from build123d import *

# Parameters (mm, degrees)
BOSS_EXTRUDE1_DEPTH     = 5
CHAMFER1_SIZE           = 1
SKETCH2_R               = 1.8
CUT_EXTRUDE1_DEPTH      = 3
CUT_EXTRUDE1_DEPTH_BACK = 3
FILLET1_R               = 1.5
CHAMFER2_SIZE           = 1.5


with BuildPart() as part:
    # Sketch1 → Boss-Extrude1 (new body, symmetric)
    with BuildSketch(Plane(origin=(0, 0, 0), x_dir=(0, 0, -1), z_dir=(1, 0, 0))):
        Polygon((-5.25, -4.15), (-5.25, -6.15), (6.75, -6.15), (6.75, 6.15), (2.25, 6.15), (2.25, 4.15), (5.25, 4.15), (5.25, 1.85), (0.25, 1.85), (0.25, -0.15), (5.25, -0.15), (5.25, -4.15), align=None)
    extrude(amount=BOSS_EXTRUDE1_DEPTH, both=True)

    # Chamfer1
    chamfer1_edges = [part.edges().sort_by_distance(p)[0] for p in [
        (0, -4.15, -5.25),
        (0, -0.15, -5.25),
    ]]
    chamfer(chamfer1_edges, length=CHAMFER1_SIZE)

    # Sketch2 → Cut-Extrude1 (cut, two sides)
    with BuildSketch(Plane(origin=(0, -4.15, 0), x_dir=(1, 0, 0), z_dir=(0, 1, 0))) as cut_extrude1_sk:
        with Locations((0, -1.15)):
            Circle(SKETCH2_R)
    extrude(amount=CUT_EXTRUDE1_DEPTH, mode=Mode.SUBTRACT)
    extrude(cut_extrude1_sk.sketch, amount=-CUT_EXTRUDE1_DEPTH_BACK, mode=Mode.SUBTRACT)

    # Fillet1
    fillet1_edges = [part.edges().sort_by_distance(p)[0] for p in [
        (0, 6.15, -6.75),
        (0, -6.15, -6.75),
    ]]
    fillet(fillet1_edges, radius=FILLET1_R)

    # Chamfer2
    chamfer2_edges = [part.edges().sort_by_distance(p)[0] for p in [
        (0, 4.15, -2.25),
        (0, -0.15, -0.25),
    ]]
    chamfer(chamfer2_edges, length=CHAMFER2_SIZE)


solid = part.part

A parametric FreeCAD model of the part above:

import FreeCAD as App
import Part
import Sketcher

V = App.Vector
Q = App.Units.Quantity


def edges_at(feature, points):
    """Names of the edges that pass closest to the given points."""
    edges = feature.Shape.Edges
    near = lambda p: min(range(len(edges)), key=lambda i: edges[i].distToShape(Part.Vertex(*p))[0])
    return sorted({f"Edge{near(p) + 1}" for p in points})


def add_polygon(sketch, points):
    """Adds a closed chain of lines whose ends are joined by coincident constraints."""
    first, n = sketch.GeometryCount, len(points)
    for a, b in zip(points, points[1:] + points[:1]):
        sketch.addGeometry(Part.LineSegment(App.Vector(*a, 0), App.Vector(*b, 0)), False)
    for i in range(n):
        sketch.addConstraint(Sketcher.Constraint("Coincident", first + i, 2, first + (i + 1) % n, 1))

doc = App.newDocument("Part")
body = doc.addObject("PartDesign::Body", "Body")

# Sketch on YZ plane
sketch1 = body.newObject("Sketcher::SketchObject", "Sketch")
sketch1.AttachmentSupport = (doc.getObject("YZ_Plane"), [""])
sketch1.MapMode = "FlatFace"
add_polygon(sketch1, [(-4.2, 5.2), (-6.2, 5.2), (-6.2, -6.8), (6.2, -6.8), (6.2, -2.2), (4.2, -2.2), (4.2, -5.2), (1.9, -5.2), (1.9, -0.2), (-0.1, -0.2), (-0.1, -5.2), (-4.2, -5.2)])  # lines 0-11
sketch1.addConstraint([
    Sketcher.Constraint("Horizontal", 0),
    Sketcher.Constraint("Vertical", 1),
    Sketcher.Constraint("Horizontal", 2),
    Sketcher.Constraint("Vertical", 3),
    Sketcher.Constraint("Horizontal", 4),
    Sketcher.Constraint("Vertical", 5),
    Sketcher.Constraint("Horizontal", 6),
    Sketcher.Constraint("Vertical", 7),
    Sketcher.Constraint("Horizontal", 8),
    Sketcher.Constraint("Vertical", 9),
    Sketcher.Constraint("Horizontal", 10),
    Sketcher.Constraint("Vertical", 11),
    Sketcher.Constraint("Symmetric", 5, 2, 11, 2, -1, 1),
    Sketcher.Constraint("Horizontal", 6, 2, 9, 2),
    Sketcher.Constraint("Equal", 0, 4),
    Sketcher.Constraint("Equal", 4, 8),
    Sketcher.Constraint("DistanceX", 0, 2, 0, 1, Q("2 mm")),
    Sketcher.Constraint("DistanceX", 10, 2, 10, 1, Q("4 mm")),
    Sketcher.Constraint("DistanceY", 1, 2, 1, 1, Q("12 mm")),
    Sketcher.Constraint("DistanceY", 5, 2, 5, 1, Q("3 mm")),
    Sketcher.Constraint("DistanceY", 7, 1, 7, 2, Q("5 mm")),
    Sketcher.Constraint("DistanceX", 2, 1, 2, 2, Q("12.3 mm")),
    Sketcher.Constraint("DistanceY", 3, 1, 3, 2, Q("4.5 mm")),
])
pad1 = body.newObject("PartDesign::Pad", "Pad")
pad1.Profile = sketch1
pad1.Length = 10
pad1.Midplane = True
doc.recompute()

chamfer = body.newObject("PartDesign::Chamfer", "Chamfer")
chamfer.Base = (pad1, edges_at(pad1, [(0, -4.15, -5.25), (0, -0.15, -5.25)]))
chamfer.Size = 1

# Sketch on XZ plane
sketch2 = body.newObject("Sketcher::SketchObject", "Sketch001")
sketch2.AttachmentSupport = (doc.getObject("XZ_Plane"), [""])
sketch2.MapMode = "FlatFace"
sketch2.AttachmentOffset = App.Placement(V(0, 0, 4.15), App.Rotation())
sketch2.addGeometry(Part.Circle(V(0, 1.1, 0), V(0, 0, 1), 1.8), False)
sketch2.addConstraint([
    Sketcher.Constraint("PointOnObject", 0, 3, -2),
    Sketcher.Constraint("Diameter", 0, Q("3.6 mm")),
    Sketcher.Constraint("DistanceY", -1, 1, 0, 3, Q("1.15 mm")),
])
pocket1 = body.newObject("PartDesign::Pocket", "Pocket")
pocket1.Profile = sketch2
pocket1.Type = "TwoLengths"
pocket1.Length = 3
pocket1.Length2 = 3
doc.recompute()

fillet = body.newObject("PartDesign::Fillet", "Fillet")
fillet.Base = (pocket1, edges_at(pocket1, [(0, 6.15, -6.75), (0, -6.15, -6.75)]))
fillet.Radius = 1.5
doc.recompute()

chamfer2 = body.newObject("PartDesign::Chamfer", "Chamfer001")
chamfer2.Base = (fillet, edges_at(fillet, [(0, 4.15, -2.25), (0, -0.15, -0.25)]))
chamfer2.Size = 1.5

doc.recompute()
